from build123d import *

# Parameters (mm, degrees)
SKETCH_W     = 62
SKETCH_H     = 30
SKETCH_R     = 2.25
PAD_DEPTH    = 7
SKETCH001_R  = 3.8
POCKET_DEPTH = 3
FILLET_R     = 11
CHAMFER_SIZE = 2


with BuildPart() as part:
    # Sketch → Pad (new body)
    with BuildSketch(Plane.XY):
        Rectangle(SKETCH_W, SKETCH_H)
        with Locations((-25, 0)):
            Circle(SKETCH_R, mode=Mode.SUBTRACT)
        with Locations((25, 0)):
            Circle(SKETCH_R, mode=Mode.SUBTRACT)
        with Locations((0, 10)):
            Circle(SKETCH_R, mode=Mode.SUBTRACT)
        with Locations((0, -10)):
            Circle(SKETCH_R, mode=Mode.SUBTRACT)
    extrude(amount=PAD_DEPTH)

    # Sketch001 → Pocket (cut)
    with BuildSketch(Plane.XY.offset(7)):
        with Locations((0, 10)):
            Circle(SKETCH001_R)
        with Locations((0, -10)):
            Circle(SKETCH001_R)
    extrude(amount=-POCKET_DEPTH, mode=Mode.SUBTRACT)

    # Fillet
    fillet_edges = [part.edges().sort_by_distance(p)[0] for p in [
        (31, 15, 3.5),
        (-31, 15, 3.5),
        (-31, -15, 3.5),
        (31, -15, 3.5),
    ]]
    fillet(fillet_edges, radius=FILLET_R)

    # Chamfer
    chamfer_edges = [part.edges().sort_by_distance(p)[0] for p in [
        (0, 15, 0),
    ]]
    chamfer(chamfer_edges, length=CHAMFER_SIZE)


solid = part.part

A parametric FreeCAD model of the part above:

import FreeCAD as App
import Part
import Sketcher
from FreeCAD import Vector
Q = App.Units.Quantity


def edges_at(feature, points):
    """Names of the edges that pass closest to the given points."""
    edges = feature.Shape.Edges
    near = lambda p: min(range(len(edges)), key=lambda i: edges[i].distToShape(Part.Vertex(*p))[0])
    return sorted({f"Edge{near(p) + 1}" for p in points})

doc = App.newDocument("Part")
params = doc.addObject("Spreadsheet::Sheet", "Params")
for row, (alias, value) in enumerate([
    ("sketch1_diameter", "4.5 mm"),
    ("sketch1_width", "62 mm"),
    ("sketch1_height", "30 mm"),
    ("pad1_length", "7 mm"),
    ("sketch2_diameter", "7.6 mm"),
    ("pocket1_length", "3 mm"),
    ("fillet_radius", "11 mm"),
    ("chamfer_size", "2 mm"),
], start=1):
    params.set(f"A{row}", alias)
    params.set(f"B{row}", "=" + value)
    params.setAlias(f"B{row}", alias)

body = doc.addObject("PartDesign::Body", "Body")

sketch1 = body.newObject("Sketcher::SketchObject", "Sketch")
sketch1.AttachmentSupport = (doc.getObject("XY_Plane"), [""])
sketch1.MapMode = "FlatFace"
sketch1.addGeometry([
    Part.LineSegment(Vector(-31, 15, 0), Vector(-31, -15, 0)),
    Part.LineSegment(Vector(-31, -15, 0), Vector(31, -15, 0)),
    Part.LineSegment(Vector(31, -15, 0), Vector(31, 15, 0)),
    Part.LineSegment(Vector(31, 15, 0), Vector(-31, 15, 0)),
    Part.Circle(Vector(-25, 0, 0), Vector(0, 0, 1), 2.25),
    Part.Circle(Vector(0, -10, 0), Vector(0, 0, 1), 2.25),
    Part.Circle(Vector(25, 0, 0), Vector(0, 0, 1), 2.25),
    Part.Circle(Vector(0, 10, 0), Vector(0, 0, 1), 2.25),
], False)
sketch1.addConstraint([
    Sketcher.Constraint("Coincident", 0, 2, 1, 1),
    Sketcher.Constraint("Coincident", 1, 2, 2, 1),
    Sketcher.Constraint("Coincident", 2, 2, 3, 1),
    Sketcher.Constraint("Coincident", 3, 2, 0, 1),
    Sketcher.Constraint("Vertical", 0),
    Sketcher.Constraint("Horizontal", 1),
    Sketcher.Constraint("Vertical", 2),
    Sketcher.Constraint("Horizontal", 3),
    Sketcher.Constraint("Equal", 4, 5),
    Sketcher.Constraint("Equal", 5, 6),
    Sketcher.Constraint("Equal", 6, 7),
    Sketcher.Constraint("Symmetric", 4, 3, 6, 3, -1, 1),
    Sketcher.Constraint("Symmetric", 5, 3, 7, 3, -1, 1),
    Sketcher.Constraint("Symmetric", 0, 2, 2, 2, -1, 1),
    Sketcher.Constraint("PointOnObject", 4, 3, -1),
    Sketcher.Constraint("PointOnObject", 5, 3, -2),
    Sketcher.Constraint("Diameter", 4, Q("4.5 mm")),
    Sketcher.Constraint("DistanceX", 1, 1, 1, 2, Q("62 mm")),
    Sketcher.Constraint("DistanceY", 0, 2, 0, 1, Q("30 mm")),
    Sketcher.Constraint("DistanceX", 4, 3, -1, 1, Q("25 mm")),
    Sketcher.Constraint("DistanceY", 5, 3, -1, 1, Q("10 mm")),
])
sketch1.setExpression("Constraints[16]", "Params.sketch1_diameter")
sketch1.setExpression("Constraints[17]", "Params.sketch1_width")
sketch1.setExpression("Constraints[18]", "Params.sketch1_height")
pad1 = body.newObject("PartDesign::Pad", "Pad")
pad1.Profile = sketch1
pad1.setExpression("Length", "Params.pad1_length")

sketch2 = body.newObject("Sketcher::SketchObject", "Sketch001")
sketch2.AttachmentSupport = (doc.getObject("XY_Plane"), [""])
sketch2.MapMode = "FlatFace"
sketch2.AttachmentOffset = App.Placement(Vector(0, 0, 7), App.Rotation())
sketch2.addGeometry([
    Part.Circle(Vector(0, 10, 0), Vector(0, 0, 1), 3.8),
    Part.Circle(Vector(0, -10, 0), Vector(0, 0, 1), 3.8),
], False)
sketch2.addConstraint([
    Sketcher.Constraint("Equal", 0, 1),
    Sketcher.Constraint("Symmetric", 0, 3, 1, 3, -1, 1),
    Sketcher.Constraint("PointOnObject", 0, 3, -2),
    Sketcher.Constraint("Diameter", 0, Q("7.6 mm")),
    Sketcher.Constraint("DistanceY", -1, 1, 0, 3, Q("10 mm")),
])
sketch2.setExpression("Constraints[3]", "Params.sketch2_diameter")
pocket1 = body.newObject("PartDesign::Pocket", "Pocket")
pocket1.Profile = sketch2
pocket1.setExpression("Length", "Params.pocket1_length")
doc.recompute()

fillet = body.newObject("PartDesign::Fillet", "Fillet")
fillet.Base = (pocket1, edges_at(pocket1, [
    (31, 15, 3.5),
    (-31, 15, 3.5),
    (-31, -15, 3.5),
    (31, -15, 3.5),
]))
fillet.setExpression("Radius", "Params.fillet_radius")
doc.recompute()

chamfer = body.newObject("PartDesign::Chamfer", "Chamfer")
chamfer.Base = (fillet, edges_at(fillet, [(0, 15, 0)]))
chamfer.setExpression("Size", "Params.chamfer_size")

doc.recompute()
